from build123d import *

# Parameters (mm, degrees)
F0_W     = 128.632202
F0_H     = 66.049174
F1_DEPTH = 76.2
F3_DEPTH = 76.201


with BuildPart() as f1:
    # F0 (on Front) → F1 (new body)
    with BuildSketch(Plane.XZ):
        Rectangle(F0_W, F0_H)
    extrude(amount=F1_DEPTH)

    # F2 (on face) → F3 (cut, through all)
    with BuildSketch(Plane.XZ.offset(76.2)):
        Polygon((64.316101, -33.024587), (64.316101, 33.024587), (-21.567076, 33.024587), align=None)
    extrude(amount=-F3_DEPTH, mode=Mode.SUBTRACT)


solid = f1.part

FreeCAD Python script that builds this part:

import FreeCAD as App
import Part
import Sketcher
from FreeCAD import Vector


def add_polygon(sketch, points):
    """Adds a closed chain of lines whose ends are joined by coincident constraints."""
    first, n = sketch.GeometryCount, len(points)
    for a, b in zip(points, points[1:] + points[:1]):
        sketch.addGeometry(Part.LineSegment(App.Vector(*a, 0), App.Vector(*b, 0)), False)
    for i in range(n):
        sketch.addConstraint(Sketcher.Constraint("Coincident", first + i, 2, first + (i + 1) % n, 1))

doc = App.newDocument("Part")
params = doc.addObject("Spreadsheet::Sheet", "Params")
for row, (alias, value) in enumerate([
    ("pad1_length", "3 in"),
], start=1):
    params.set(f"A{row}", alias)
    params.set(f"B{row}", "=" + value)
    params.setAlias(f"B{row}", alias)

body = doc.addObject("PartDesign::Body", "Body")

sketch1 = doc.addObject("Sketcher::SketchObject", "Sketch")
body.addObject(sketch1)
sketch1.AttachmentSupport = (doc.XZ_Plane, [""])
sketch1.MapMode = "FlatFace"
add_polygon(sketch1, [(-64.316101, 33.024587), (-64.316101, -33.024587), (64.316101, -33.024587), (64.316101, 33.024587)])
sketch1.addConstraint(Sketcher.Constraint("Vertical", 0))
sketch1.addConstraint(Sketcher.Constraint("Horizontal", 1))
sketch1.addConstraint(Sketcher.Constraint("Vertical", 2))
sketch1.addConstraint(Sketcher.Constraint("Horizontal", 3))
sketch1.addConstraint(Sketcher.Constraint("Symmetric", 0, 2, 2, 2, -1, 1))
sketch1.addConstraint(Sketcher.Constraint("DistanceX", 1, 1, 1, 2, 128.632202))
sketch1.addConstraint(Sketcher.Constraint("DistanceY", 0, 2, 0, 1, 66.049174))
pad1 = doc.addObject("PartDesign::Pad", "Pad")
body.addObject(pad1)
pad1.Profile = sketch1
pad1.setExpression("Length", "Params.pad1_length")

sketch2 = doc.addObject("Sketcher::SketchObject", "Sketch001")
body.addObject(sketch2)
sketch2.AttachmentSupport = (doc.XZ_Plane, [""])
sketch2.MapMode = "FlatFace"
sketch2.AttachmentOffset = App.Placement(Vector(0, 0, 3 * 25.4), App.Rotation())
add_polygon(sketch2, [(64.316101, -33.024587), (64.316101, 33.024587), (-21.567076, 33.024587)])
sketch2.addConstraint(Sketcher.Constraint("Vertical", 0))
sketch2.addConstraint(Sketcher.Constraint("Horizontal", 1))
sketch2.addConstraint(Sketcher.Constraint("DistanceX", -1, 1, 0, 2, 64.316101))
sketch2.addConstraint(Sketcher.Constraint("Distance", 2, 108.343959))
sketch2.addConstraint(Sketcher.Constraint("DistanceX", 1, 2, 1, 1, 85.883177))
sketch2.addConstraint(Sketcher.Constraint("DistanceY", -1, 1, 0, 2, 33.024587))
pocket1 = doc.addObject("PartDesign::Pocket", "Pocket")
body.addObject(pocket1)
pocket1.Profile = sketch2
pocket1.Type = "ThroughAll"

doc.recompute()
